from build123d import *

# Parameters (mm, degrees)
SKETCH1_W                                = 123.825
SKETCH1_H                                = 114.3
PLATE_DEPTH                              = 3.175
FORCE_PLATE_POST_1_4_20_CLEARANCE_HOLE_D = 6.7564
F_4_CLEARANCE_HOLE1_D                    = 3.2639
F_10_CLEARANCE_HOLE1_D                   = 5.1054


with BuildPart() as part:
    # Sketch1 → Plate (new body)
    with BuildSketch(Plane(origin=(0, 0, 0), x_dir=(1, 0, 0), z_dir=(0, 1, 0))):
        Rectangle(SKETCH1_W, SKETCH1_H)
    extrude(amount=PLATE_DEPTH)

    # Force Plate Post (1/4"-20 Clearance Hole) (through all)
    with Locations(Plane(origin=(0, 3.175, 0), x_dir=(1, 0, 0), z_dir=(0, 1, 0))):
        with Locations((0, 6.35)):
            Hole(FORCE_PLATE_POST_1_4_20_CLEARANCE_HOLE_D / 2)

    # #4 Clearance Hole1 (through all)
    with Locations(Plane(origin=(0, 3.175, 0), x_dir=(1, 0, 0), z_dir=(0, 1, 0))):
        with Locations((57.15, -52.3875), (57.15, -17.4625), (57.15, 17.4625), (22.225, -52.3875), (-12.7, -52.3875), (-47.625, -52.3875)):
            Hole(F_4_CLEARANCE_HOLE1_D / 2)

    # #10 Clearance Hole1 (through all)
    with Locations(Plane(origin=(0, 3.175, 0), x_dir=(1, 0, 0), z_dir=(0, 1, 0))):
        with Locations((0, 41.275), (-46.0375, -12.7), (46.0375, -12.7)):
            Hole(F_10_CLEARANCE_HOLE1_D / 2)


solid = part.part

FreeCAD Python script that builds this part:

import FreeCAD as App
import Part
import Sketcher

V = App.Vector
Q = App.Units.Quantity

doc = App.newDocument("Part")
body = doc.addObject("PartDesign::Body", "Body")

sketch1 = body.newObject("Sketcher::SketchObject", "Sketch")
sketch1.AttachmentSupport = (doc.getObject("XZ_Plane"), [""])
sketch1.MapMode = "FlatFace"
sketch1.addGeometry([
    Part.LineSegment(V(-62, -57, 0), V(-62, 57, 0)),
    Part.LineSegment(V(-62, 57, 0), V(62, 57, 0)),
    Part.LineSegment(V(62, 57, 0), V(62, -57, 0)),
    Part.LineSegment(V(62, -57, 0), V(-62, -57, 0)),
], False)
sketch1.addConstraint([
    Sketcher.Constraint("Coincident", 0, 2, 1, 1),
    Sketcher.Constraint("Coincident", 1, 2, 2, 1),
    Sketcher.Constraint("Coincident", 2, 2, 3, 1),
    Sketcher.Constraint("Coincident", 3, 2, 0, 1),
    Sketcher.Constraint("Vertical", 0),
    Sketcher.Constraint("Horizontal", 1),
    Sketcher.Constraint("Vertical", 2),
    Sketcher.Constraint("Horizontal", 3),
    Sketcher.Constraint("Symmetric", 0, 2, 2, 2, -1, 1),
    Sketcher.Constraint("DistanceY", 0, 1, 0, 2, Q("4.5 in")),
    Sketcher.Constraint("DistanceX", 1, 1, 1, 2, Q("4.875 in")),
])
pad1 = body.newObject("PartDesign::Pad", "Pad")
pad1.Profile = sketch1
pad1.Length = Q("0.125 in")
pad1.Reversed = True

sketch2 = body.newObject("Sketcher::SketchObject", "Sketch001")
sketch2.AttachmentSupport = (doc.getObject("XZ_Plane"), [""])
sketch2.MapMode = "FlatFace"
sketch2.AttachmentOffset = App.Placement(V(0, 0, -0.125 * 25.4), App.Rotation())
sketch2.addGeometry(Part.Circle(V(0, -6.3, 0), V(0, 0, 1), 3.4), False)
sketch2.addConstraint([
    Sketcher.Constraint("PointOnObject", 0, 3, -2),
    Sketcher.Constraint("Diameter", 0, Q("0.266 in")),
    Sketcher.Constraint("DistanceY", 0, 3, -1, 1, Q("0.25 in")),
])
doc.recompute()
hole = body.newObject("PartDesign::Hole", "Hole")
hole.Profile = sketch2
hole.ThreadType = "None"
hole.Diameter = Q("0.266 in")
hole.DepthType = "ThroughAll"
hole.Reversed = True

sketch3 = body.newObject("Sketcher::SketchObject", "Sketch002")
sketch3.AttachmentSupport = (doc.getObject("XZ_Plane"), [""])
sketch3.MapMode = "FlatFace"
sketch3.AttachmentOffset = App.Placement(V(0, 0, -0.125 * 25.4), App.Rotation())
sketch3.addGeometry([
    Part.Circle(V(57.1, 52.4, 0), V(0, 0, 1), 1.6),
    Part.Circle(V(57.1, 17.5, 0), V(0, 0, 1), 1.6),
    Part.Circle(V(57.1, -17.5, 0), V(0, 0, 1), 1.6),
    Part.Circle(V(22.2, 52.4, 0), V(0, 0, 1), 1.6),
    Part.Circle(V(-12.7, 52.4, 0), V(0, 0, 1), 1.6),
    Part.Circle(V(-47.6, 52.4, 0), V(0, 0, 1), 1.6),
], False)
sketch3.addConstraint([
    Sketcher.Constraint("Equal", 0, 1),
    Sketcher.Constraint("Equal", 1, 2),
    Sketcher.Constraint("Equal", 2, 3),
    Sketcher.Constraint("Equal", 3, 4),
    Sketcher.Constraint("Equal", 4, 5),
    Sketcher.Constraint("Symmetric", 1, 3, 2, 3, -1),
    Sketcher.Constraint("Horizontal", 0, 3, 3, 3),
    Sketcher.Constraint("Horizontal", 3, 3, 4, 3),
    Sketcher.Constraint("Horizontal", 4, 3, 5, 3),
    Sketcher.Constraint("Vertical", 0, 3, 1, 3),
    Sketcher.Constraint("Diameter", 0, Q("0.1285 in")),
    Sketcher.Constraint("DistanceX", 4, 3, -1, 1, Q("0.5 in")),
    Sketcher.Constraint("DistanceX", -1, 1, 0, 3, Q("2.25 in")),
    Sketcher.Constraint("DistanceY", 2, 3, 0, 3, Q("2.75 in")),
    Sketcher.Constraint("DistanceX", 5, 3, 3, 3, Q("2.75 in")),
    Sketcher.Constraint("DistanceY", -1, 1, 0, 3, Q("2.0625 in")),
    Sketcher.Constraint("DistanceX", -1, 1, 3, 3, Q("0.875 in")),
])
doc.recompute()
hole2 = body.newObject("PartDesign::Hole", "Hole001")
hole2.Profile = sketch3
hole2.ThreadType = "None"
hole2.Diameter = Q("0.1285 in")
hole2.DepthType = "ThroughAll"
hole2.Reversed = True

sketch4 = body.newObject("Sketcher::SketchObject", "Sketch003")
sketch4.AttachmentSupport = (doc.getObject("XZ_Plane"), [""])
sketch4.MapMode = "FlatFace"
sketch4.AttachmentOffset = App.Placement(V(0, 0, -0.125 * 25.4), App.Rotation())
sketch4.addGeometry([
    Part.Circle(V(0, -41.3, 0), V(0, 0, 1), 2.6),
    Part.Circle(V(-46, 12.7, 0), V(0, 0, 1), 2.6),
    Part.Circle(V(46, 12.7, 0), V(0, 0, 1), 2.6),
], False)
sketch4.addConstraint([
    Sketcher.Constraint("Equal", 0, 1),
    Sketcher.Constraint("Equal", 1, 2),
    Sketcher.Constraint("Symmetric", 1, 3, 2, 3, -2),
    Sketcher.Constraint("PointOnObject", 0, 3, -2),
    Sketcher.Constraint("Diameter", 0, Q("0.201 in")),
    Sketcher.Constraint("DistanceY", -1, 1, 1, 3, Q("0.5 in")),
    Sketcher.Constraint("DistanceY", 0, 3, -1, 1, Q("1.625 in")),
    Sketcher.Constraint("DistanceX", 1, 3, -1, 1, Q("1.8125 in")),
])
doc.recompute()
hole3 = body.newObject("PartDesign::Hole", "Hole002")
hole3.Profile = sketch4
hole3.ThreadType = "None"
hole3.Diameter = Q("0.201 in")
hole3.DepthType = "ThroughAll"
hole3.Reversed = True

doc.recompute()
